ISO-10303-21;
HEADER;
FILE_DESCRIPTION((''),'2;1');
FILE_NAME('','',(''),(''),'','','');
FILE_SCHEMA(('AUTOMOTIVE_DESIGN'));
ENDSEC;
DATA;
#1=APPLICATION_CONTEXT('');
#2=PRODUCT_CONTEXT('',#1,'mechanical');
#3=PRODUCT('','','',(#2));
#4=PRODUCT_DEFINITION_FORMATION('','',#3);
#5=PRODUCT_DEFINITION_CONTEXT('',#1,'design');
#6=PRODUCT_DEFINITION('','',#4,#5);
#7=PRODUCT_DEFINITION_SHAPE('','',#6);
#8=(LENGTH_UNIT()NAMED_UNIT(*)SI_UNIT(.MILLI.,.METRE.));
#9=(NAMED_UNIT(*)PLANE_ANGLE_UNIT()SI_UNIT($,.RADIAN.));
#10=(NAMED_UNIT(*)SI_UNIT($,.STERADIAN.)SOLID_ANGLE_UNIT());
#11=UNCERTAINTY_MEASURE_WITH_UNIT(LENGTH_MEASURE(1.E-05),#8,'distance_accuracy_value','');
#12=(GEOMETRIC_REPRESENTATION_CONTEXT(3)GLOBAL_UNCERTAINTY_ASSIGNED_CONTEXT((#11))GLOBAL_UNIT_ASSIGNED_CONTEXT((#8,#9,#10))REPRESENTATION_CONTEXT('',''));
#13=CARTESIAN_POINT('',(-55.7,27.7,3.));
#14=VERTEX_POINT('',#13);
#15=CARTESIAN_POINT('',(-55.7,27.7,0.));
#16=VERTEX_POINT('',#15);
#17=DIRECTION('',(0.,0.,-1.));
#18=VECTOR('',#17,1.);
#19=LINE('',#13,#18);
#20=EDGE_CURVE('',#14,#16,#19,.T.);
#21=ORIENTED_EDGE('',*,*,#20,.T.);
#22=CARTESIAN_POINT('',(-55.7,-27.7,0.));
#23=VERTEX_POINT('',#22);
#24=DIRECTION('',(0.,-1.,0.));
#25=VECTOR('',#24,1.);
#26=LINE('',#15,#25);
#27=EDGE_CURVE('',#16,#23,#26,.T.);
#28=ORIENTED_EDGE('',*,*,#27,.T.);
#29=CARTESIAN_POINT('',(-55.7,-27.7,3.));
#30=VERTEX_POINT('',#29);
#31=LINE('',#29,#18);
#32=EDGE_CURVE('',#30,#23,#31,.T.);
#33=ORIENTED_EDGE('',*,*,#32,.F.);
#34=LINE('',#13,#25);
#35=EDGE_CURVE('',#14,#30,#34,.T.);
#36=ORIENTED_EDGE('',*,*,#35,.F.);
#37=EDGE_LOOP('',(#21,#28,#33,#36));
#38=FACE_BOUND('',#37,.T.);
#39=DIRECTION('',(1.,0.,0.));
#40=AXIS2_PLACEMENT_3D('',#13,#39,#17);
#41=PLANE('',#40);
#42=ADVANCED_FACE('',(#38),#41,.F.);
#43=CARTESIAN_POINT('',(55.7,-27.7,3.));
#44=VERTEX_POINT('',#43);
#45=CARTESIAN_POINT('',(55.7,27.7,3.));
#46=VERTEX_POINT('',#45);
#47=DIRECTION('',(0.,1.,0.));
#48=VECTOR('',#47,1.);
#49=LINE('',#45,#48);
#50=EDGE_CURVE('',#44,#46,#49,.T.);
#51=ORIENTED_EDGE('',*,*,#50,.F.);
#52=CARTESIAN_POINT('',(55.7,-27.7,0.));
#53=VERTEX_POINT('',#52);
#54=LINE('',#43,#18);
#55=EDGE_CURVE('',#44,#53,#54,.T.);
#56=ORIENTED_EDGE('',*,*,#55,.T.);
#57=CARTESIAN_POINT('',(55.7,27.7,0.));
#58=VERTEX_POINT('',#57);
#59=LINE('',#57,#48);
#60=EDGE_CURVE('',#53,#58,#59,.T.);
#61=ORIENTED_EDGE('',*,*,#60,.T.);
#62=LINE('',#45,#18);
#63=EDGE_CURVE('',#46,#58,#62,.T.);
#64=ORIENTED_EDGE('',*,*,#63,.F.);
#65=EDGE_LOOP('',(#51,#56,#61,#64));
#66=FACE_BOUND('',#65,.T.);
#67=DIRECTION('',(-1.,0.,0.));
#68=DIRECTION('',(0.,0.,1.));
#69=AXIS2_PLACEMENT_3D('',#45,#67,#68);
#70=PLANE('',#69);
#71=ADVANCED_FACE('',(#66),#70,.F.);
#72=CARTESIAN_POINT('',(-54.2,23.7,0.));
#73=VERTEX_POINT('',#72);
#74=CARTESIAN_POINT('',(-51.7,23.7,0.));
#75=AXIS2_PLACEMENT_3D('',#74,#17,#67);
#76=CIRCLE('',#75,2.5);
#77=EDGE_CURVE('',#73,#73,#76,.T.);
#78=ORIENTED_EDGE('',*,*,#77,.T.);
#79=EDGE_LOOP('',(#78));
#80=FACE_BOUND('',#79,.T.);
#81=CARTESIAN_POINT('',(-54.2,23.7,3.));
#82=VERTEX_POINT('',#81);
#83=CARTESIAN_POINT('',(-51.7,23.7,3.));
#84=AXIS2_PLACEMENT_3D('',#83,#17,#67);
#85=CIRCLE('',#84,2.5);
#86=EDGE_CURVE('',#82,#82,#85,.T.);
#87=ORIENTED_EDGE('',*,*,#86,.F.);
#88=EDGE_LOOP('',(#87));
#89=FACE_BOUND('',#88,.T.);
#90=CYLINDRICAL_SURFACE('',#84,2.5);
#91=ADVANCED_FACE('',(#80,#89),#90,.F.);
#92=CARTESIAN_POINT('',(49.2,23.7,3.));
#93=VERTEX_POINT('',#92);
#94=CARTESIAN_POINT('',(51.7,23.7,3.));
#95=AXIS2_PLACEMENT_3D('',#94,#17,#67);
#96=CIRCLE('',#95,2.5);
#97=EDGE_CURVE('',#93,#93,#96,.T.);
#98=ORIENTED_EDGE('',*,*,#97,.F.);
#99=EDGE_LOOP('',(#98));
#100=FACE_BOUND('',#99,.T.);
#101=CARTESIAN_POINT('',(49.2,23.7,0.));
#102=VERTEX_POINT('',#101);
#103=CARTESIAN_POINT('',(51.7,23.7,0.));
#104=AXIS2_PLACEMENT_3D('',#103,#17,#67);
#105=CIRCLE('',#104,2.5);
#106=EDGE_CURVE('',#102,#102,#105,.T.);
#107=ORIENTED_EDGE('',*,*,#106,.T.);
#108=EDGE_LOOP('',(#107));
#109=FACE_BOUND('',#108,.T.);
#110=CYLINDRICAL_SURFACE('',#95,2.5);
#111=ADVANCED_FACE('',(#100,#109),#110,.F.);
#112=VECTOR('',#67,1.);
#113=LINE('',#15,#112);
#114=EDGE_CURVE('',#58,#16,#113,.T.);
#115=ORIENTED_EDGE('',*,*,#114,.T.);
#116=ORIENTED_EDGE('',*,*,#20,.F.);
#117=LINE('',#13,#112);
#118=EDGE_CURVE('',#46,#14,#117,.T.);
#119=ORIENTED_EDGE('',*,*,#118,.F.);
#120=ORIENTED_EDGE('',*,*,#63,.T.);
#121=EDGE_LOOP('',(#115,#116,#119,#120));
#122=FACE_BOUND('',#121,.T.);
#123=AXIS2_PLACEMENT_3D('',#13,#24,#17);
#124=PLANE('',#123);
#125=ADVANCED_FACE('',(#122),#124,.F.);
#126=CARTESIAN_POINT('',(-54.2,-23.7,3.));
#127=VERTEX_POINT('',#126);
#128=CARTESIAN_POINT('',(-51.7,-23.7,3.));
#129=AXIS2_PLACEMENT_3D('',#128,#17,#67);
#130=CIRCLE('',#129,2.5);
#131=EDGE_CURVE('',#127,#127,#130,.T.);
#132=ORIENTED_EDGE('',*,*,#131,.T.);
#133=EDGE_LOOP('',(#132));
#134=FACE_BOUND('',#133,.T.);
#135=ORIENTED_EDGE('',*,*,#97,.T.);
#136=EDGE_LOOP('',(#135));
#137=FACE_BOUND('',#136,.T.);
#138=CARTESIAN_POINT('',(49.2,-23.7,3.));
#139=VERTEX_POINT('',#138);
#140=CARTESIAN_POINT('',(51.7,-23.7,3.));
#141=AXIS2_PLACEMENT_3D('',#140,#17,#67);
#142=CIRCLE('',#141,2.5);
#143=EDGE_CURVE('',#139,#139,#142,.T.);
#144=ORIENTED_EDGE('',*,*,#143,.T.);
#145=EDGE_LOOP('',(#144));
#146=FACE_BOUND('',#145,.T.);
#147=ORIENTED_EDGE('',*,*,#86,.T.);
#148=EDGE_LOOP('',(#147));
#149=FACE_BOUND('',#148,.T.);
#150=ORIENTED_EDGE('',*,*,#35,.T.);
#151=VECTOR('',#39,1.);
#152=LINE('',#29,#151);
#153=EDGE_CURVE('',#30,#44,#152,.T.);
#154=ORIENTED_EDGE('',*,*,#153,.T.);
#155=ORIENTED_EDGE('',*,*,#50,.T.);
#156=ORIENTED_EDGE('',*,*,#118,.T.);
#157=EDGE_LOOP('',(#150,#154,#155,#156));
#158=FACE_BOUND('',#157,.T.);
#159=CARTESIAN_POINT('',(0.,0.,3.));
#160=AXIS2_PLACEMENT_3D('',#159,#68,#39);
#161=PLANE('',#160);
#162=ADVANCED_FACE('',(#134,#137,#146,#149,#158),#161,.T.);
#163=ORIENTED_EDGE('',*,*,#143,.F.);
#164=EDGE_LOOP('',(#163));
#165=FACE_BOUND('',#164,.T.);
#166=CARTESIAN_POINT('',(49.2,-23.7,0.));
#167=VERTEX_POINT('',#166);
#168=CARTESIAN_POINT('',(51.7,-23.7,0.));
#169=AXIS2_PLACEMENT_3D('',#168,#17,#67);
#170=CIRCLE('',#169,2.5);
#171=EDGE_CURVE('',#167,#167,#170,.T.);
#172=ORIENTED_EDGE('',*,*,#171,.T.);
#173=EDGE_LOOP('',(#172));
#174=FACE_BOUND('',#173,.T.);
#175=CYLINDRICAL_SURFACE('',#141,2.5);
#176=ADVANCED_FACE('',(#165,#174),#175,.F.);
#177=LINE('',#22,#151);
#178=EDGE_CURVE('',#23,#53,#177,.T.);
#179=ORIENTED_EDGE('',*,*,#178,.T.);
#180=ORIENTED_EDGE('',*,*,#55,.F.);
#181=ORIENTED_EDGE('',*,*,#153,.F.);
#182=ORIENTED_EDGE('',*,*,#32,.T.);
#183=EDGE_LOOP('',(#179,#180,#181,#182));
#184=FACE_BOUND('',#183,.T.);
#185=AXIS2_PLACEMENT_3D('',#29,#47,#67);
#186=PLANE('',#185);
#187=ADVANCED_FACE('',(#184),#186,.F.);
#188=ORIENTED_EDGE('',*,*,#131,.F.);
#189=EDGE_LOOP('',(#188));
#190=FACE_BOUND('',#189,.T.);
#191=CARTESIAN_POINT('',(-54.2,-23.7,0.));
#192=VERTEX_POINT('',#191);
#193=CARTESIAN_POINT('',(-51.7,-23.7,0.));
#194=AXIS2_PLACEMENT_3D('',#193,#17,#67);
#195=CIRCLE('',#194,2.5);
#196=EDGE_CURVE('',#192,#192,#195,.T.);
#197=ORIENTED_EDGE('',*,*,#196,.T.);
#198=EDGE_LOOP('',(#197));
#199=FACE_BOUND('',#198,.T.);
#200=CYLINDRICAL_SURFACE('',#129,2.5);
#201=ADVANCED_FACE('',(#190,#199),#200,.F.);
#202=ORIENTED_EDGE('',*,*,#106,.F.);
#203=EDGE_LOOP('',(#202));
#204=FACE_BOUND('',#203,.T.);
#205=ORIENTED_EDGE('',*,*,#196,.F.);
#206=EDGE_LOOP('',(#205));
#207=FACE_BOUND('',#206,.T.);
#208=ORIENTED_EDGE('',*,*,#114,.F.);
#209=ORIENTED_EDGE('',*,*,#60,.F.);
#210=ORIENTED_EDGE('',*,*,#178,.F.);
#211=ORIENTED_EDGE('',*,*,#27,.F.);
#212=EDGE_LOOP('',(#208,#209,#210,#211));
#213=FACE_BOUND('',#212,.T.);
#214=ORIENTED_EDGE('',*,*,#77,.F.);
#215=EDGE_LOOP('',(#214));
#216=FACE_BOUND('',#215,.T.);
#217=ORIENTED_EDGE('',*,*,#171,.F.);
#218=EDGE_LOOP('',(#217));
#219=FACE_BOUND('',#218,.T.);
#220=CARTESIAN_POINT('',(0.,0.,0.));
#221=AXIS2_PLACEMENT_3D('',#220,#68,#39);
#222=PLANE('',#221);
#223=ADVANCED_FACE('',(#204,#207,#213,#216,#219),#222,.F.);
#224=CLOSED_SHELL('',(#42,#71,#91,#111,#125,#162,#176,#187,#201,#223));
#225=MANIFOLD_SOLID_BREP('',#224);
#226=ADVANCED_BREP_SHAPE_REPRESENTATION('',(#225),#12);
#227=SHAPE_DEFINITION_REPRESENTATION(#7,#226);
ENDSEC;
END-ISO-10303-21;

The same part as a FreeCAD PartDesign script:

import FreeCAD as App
import Part
import Sketcher

doc = App.newDocument("Part")
params = doc.addObject("Spreadsheet::Sheet", "Params")
for row, (alias, value) in enumerate([
    ("sketch1_width", "111.4 mm"),
    ("sketch1_height", "55.4 mm"),
    ("pad1_length", "3 mm"),
    ("sketch2_diameter", "5 mm"),
], start=1):
    params.set(f"A{row}", alias)
    params.set(f"B{row}", "=" + value)
    params.setAlias(f"B{row}", alias)

body = doc.addObject("PartDesign::Body", "Body")

# Sketch on XY plane
sketch1 = body.newObject("Sketcher::SketchObject", "Sketch")
sketch1.AttachmentSupport = (doc.getObject("XY_Plane"), [""])
sketch1.MapMode = "FlatFace"
sketch1.addGeometry([
    Part.LineSegment(App.Vector(-56, 28, 0), App.Vector(-56, -28, 0)),
    Part.LineSegment(App.Vector(-56, -28, 0), App.Vector(56, -28, 0)),
    Part.LineSegment(App.Vector(56, -28, 0), App.Vector(56, 28, 0)),
    Part.LineSegment(App.Vector(56, 28, 0), App.Vector(-56, 28, 0)),
], False)
sketch1.addConstraint([
    Sketcher.Constraint("Coincident", 0, 2, 1, 1),
    Sketcher.Constraint("Coincident", 1, 2, 2, 1),
    Sketcher.Constraint("Coincident", 2, 2, 3, 1),
    Sketcher.Constraint("Coincident", 3, 2, 0, 1),
    Sketcher.Constraint("Vertical", 0),
    Sketcher.Constraint("Horizontal", 1),
    Sketcher.Constraint("Vertical", 2),
    Sketcher.Constraint("Horizontal", 3),
    Sketcher.Constraint("Symmetric", 0, 2, 2, 2, -1, 1),
    Sketcher.Constraint("DistanceX", 1, 1, 1, 2, 111.4),
    Sketcher.Constraint("DistanceY", 0, 2, 0, 1, 55.4),
])
sketch1.setExpression("Constraints[9]", "Params.sketch1_width")
sketch1.setExpression("Constraints[10]", "Params.sketch1_height")
pad1 = body.newObject("PartDesign::Pad", "Pad")
pad1.Profile = sketch1
pad1.setExpression("Length", "Params.pad1_length")

# Sketch on XY plane
sketch2 = body.newObject("Sketcher::SketchObject", "Sketch001")
sketch2.AttachmentSupport = (doc.getObject("XY_Plane"), [""])
sketch2.MapMode = "FlatFace"
sketch2.addGeometry([
    Part.Circle(App.Vector(51.7, 23.7, 0), App.Vector(0, 0, 1), 2.5),
    Part.Circle(App.Vector(51.7, -23.7, 0), App.Vector(0, 0, 1), 2.5),
    Part.Circle(App.Vector(-51.7, -23.7, 0), App.Vector(0, 0, 1), 2.5),
    Part.Circle(App.Vector(-51.7, 23.7, 0), App.Vector(0, 0, 1), 2.5),
], False)
sketch2.addConstraint([
    Sketcher.Constraint("Equal", 0, 1),
    Sketcher.Constraint("Equal", 1, 2),
    Sketcher.Constraint("Equal", 2, 3),
    Sketcher.Constraint("Symmetric", 0, 3, 2, 3, -1, 1),
    Sketcher.Constraint("Symmetric", 1, 3, 3, 3, -1, 1),
    Sketcher.Constraint("Symmetric", 1, 3, 2, 3, -2),
    Sketcher.Constraint("Diameter", 0, 5.0),
    Sketcher.Constraint("DistanceX", -1, 1, 0, 3, 51.7),
    Sketcher.Constraint("DistanceY", -1, 1, 0, 3, 23.7),
])
sketch2.setExpression("Constraints[6]", "Params.sketch2_diameter")
pocket1 = body.newObject("PartDesign::Pocket", "Pocket")
pocket1.Profile = sketch2
pocket1.Type = "ThroughAll"
pocket1.Reversed = True

doc.recompute()
